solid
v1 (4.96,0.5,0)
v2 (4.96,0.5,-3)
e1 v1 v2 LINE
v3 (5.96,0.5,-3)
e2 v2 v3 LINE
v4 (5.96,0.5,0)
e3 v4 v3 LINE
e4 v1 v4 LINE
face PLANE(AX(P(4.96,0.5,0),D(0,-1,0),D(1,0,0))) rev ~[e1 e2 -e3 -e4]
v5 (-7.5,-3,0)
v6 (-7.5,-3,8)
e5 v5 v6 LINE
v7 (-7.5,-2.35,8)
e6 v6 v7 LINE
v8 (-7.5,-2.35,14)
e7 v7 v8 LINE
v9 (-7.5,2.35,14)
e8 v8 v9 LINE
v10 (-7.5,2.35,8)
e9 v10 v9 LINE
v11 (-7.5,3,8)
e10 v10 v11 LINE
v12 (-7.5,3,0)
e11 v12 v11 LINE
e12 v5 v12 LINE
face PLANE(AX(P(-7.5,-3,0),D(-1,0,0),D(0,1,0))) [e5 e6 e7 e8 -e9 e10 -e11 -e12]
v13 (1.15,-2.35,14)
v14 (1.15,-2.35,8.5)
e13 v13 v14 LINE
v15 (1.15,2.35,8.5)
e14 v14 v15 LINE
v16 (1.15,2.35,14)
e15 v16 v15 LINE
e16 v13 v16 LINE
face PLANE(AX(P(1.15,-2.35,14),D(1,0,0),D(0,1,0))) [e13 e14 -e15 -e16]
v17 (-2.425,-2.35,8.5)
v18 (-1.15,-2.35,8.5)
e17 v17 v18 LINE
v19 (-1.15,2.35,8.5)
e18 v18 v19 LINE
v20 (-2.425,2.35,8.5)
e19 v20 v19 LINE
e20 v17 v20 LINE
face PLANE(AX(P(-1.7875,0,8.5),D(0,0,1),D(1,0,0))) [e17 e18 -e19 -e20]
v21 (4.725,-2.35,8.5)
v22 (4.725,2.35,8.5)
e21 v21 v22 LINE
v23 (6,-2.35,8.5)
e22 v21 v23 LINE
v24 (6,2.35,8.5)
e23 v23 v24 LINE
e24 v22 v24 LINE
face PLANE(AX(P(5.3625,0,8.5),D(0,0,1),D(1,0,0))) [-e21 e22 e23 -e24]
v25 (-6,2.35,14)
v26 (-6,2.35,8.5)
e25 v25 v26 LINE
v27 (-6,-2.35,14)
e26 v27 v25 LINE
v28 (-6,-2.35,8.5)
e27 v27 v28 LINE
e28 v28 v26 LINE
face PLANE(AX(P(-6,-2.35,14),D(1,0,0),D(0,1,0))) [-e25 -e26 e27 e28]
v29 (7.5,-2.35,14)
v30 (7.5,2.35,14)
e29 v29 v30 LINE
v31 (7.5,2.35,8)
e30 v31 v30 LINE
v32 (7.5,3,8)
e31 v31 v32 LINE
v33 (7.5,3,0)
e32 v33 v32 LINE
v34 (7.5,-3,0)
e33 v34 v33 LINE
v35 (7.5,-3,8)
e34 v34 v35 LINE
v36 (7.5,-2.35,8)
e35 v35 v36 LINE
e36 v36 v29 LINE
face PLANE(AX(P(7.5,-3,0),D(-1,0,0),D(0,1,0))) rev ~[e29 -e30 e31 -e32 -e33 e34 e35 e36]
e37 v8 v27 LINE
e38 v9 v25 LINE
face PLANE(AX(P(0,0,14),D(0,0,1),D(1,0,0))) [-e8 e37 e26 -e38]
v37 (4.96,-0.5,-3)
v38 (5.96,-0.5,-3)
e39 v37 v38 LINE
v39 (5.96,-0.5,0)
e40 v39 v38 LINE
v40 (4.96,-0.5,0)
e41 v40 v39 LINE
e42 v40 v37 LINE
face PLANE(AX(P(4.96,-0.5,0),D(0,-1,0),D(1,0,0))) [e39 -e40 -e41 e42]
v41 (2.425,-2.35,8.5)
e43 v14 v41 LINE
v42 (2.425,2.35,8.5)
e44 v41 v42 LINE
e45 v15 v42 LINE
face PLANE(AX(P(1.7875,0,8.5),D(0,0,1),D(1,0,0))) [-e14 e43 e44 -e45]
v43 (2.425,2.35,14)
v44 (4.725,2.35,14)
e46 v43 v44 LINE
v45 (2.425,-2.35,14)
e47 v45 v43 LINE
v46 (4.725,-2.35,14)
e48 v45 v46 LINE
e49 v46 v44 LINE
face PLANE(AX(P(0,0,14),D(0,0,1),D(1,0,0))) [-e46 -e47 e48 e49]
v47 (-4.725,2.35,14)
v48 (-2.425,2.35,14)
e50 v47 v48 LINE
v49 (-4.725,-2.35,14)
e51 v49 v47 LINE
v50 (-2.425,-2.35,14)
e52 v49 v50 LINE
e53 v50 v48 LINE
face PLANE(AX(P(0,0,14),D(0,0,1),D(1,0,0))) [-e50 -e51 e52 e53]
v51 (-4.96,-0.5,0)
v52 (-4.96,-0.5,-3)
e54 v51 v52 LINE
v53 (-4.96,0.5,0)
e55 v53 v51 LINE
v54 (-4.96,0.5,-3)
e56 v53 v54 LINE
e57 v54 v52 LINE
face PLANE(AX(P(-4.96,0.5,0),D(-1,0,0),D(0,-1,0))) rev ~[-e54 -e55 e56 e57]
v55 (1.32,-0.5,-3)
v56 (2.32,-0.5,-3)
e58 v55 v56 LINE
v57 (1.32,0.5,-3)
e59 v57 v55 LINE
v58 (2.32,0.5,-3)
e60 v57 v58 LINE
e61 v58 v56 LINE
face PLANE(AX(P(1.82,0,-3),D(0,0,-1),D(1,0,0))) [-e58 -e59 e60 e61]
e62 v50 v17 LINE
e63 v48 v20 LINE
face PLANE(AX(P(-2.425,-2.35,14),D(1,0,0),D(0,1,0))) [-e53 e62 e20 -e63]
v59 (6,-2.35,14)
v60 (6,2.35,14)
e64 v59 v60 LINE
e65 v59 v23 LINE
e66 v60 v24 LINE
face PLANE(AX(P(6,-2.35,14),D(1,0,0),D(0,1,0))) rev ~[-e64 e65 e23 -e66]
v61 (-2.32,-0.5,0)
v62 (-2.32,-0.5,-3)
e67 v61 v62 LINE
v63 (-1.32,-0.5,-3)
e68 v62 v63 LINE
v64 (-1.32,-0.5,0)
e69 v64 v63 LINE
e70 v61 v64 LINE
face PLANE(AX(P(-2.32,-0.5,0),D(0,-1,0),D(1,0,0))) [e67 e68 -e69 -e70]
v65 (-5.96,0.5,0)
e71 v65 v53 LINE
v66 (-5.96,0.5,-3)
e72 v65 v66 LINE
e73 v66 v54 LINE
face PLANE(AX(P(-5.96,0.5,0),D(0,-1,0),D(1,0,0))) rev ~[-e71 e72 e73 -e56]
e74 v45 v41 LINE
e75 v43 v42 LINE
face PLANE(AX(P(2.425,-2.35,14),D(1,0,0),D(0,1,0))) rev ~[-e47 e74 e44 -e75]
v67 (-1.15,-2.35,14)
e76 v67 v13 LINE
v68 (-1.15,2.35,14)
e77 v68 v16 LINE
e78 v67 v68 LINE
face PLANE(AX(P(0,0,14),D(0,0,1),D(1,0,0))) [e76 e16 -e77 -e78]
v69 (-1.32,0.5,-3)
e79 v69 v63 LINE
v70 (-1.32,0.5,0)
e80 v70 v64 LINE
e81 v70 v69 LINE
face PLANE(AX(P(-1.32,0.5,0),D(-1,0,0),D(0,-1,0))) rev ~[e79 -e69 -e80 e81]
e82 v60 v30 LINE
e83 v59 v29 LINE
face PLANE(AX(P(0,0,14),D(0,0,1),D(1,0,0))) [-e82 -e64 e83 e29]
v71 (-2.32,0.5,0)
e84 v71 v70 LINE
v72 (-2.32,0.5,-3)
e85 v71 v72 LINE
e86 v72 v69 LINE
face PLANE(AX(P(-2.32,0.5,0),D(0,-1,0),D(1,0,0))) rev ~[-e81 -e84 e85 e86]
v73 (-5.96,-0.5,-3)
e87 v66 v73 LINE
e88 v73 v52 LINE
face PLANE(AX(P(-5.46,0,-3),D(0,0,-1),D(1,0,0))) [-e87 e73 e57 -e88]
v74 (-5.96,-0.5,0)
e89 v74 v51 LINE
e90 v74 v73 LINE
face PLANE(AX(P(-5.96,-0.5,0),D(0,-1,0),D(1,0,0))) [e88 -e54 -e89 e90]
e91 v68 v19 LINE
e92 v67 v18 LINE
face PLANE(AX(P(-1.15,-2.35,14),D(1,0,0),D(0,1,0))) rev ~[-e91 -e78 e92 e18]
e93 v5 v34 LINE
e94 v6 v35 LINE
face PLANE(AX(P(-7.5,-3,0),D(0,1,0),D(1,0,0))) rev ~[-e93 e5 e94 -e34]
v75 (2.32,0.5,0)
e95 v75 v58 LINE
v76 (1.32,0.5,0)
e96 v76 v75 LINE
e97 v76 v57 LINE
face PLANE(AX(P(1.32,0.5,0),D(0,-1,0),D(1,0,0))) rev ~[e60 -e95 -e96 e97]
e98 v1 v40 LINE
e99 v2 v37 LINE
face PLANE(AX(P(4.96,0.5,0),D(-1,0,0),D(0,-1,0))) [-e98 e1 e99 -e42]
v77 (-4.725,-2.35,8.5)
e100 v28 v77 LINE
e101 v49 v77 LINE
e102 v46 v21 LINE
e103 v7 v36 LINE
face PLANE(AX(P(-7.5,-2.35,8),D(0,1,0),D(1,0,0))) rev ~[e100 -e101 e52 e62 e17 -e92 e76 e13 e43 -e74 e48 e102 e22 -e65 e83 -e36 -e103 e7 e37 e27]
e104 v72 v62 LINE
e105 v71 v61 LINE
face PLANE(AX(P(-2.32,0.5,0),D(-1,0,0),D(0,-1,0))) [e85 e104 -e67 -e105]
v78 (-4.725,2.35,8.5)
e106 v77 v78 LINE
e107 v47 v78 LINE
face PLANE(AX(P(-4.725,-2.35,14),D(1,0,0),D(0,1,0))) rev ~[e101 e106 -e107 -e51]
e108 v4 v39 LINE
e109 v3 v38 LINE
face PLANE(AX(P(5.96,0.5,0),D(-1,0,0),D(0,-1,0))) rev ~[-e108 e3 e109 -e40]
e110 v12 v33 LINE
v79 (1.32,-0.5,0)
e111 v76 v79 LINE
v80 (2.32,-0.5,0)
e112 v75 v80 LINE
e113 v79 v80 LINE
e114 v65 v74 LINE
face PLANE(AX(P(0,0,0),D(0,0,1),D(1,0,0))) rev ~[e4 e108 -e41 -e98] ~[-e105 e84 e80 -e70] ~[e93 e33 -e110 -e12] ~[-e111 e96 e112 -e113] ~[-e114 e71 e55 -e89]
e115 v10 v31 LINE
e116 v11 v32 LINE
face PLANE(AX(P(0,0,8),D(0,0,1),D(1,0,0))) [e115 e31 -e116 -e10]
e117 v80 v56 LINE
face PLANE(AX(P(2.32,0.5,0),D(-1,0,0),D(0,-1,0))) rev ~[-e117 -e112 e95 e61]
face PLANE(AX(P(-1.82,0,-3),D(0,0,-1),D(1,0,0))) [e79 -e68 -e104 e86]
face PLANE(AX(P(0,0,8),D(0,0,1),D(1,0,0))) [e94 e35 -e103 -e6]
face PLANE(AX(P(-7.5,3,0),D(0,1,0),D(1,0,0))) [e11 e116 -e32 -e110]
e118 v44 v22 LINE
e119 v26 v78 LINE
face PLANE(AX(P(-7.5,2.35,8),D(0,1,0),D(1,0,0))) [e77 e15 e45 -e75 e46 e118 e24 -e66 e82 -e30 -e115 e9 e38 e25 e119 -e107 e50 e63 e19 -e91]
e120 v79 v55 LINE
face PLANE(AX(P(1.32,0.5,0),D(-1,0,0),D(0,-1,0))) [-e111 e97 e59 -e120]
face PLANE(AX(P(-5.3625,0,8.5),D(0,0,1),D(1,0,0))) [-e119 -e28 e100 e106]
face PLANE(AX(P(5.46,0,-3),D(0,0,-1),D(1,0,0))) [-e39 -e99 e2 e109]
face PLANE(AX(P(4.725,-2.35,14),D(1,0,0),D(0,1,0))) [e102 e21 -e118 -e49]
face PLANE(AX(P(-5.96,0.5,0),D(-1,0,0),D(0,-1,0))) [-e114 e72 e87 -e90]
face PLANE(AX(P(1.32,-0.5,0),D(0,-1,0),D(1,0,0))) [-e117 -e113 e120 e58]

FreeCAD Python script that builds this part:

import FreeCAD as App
import Part
import Sketcher
Q = App.Units.Quantity

doc = App.newDocument("Part")
body = doc.addObject("PartDesign::Body", "Body")

sketch1 = body.newObject("Sketcher::SketchObject", "Sketch")
sketch1.AttachmentSupport = (doc.getObject("XY_Plane"), [""])
sketch1.MapMode = "FlatFace"
sketch1.addGeometry([
    Part.LineSegment(App.Vector(-8, 3, 0), App.Vector(-8, -3, 0)),
    Part.LineSegment(App.Vector(-8, -3, 0), App.Vector(8, -3, 0)),
    Part.LineSegment(App.Vector(8, -3, 0), App.Vector(8, 3, 0)),
    Part.LineSegment(App.Vector(8, 3, 0), App.Vector(-8, 3, 0)),
], False)
sketch1.addConstraint([
    Sketcher.Constraint("Coincident", 0, 2, 1, 1),
    Sketcher.Constraint("Coincident", 1, 2, 2, 1),
    Sketcher.Constraint("Coincident", 2, 2, 3, 1),
    Sketcher.Constraint("Coincident", 3, 2, 0, 1),
    Sketcher.Constraint("Vertical", 0),
    Sketcher.Constraint("Horizontal", 1),
    Sketcher.Constraint("Vertical", 2),
    Sketcher.Constraint("Horizontal", 3),
    Sketcher.Constraint("Symmetric", 0, 2, 2, 2, -1, 1),
    Sketcher.Constraint("DistanceX", 1, 1, 1, 2, Q("15 mm")),
    Sketcher.Constraint("DistanceY", 0, 2, 0, 1, Q("6 mm")),
])
pad1 = body.newObject("PartDesign::Pad", "Pad")
pad1.Profile = sketch1
pad1.Length = 8

sketch2 = body.newObject("Sketcher::SketchObject", "Sketch001")
sketch2.AttachmentSupport = (doc.getObject("XY_Plane"), [""])
sketch2.MapMode = "FlatFace"
sketch2.AttachmentOffset = App.Placement(App.Vector(0, 0, 8), App.Rotation())
sketch2.addGeometry([
    Part.LineSegment(App.Vector(-7.5, 2.4, 0), App.Vector(-7.5, -2.4, 0)),
    Part.LineSegment(App.Vector(-7.5, -2.4, 0), App.Vector(7.5, -2.4, 0)),
    Part.LineSegment(App.Vector(7.5, -2.4, 0), App.Vector(7.5, 2.4, 0)),
    Part.LineSegment(App.Vector(7.5, 2.4, 0), App.Vector(-7.5, 2.4, 0)),
], False)
sketch2.addConstraint([
    Sketcher.Constraint("Coincident", 0, 2, 1, 1),
    Sketcher.Constraint("Coincident", 1, 2, 2, 1),
    Sketcher.Constraint("Coincident", 2, 2, 3, 1),
    Sketcher.Constraint("Coincident", 3, 2, 0, 1),
    Sketcher.Constraint("Vertical", 0),
    Sketcher.Constraint("Horizontal", 1),
    Sketcher.Constraint("Vertical", 2),
    Sketcher.Constraint("Horizontal", 3),
    Sketcher.Constraint("Symmetric", 0, 2, 2, 2, -1, 1),
    Sketcher.Constraint("DistanceX", 1, 1, 1, 2, Q("15 mm")),
    Sketcher.Constraint("DistanceY", 0, 2, 0, 1, Q("4.7 mm")),
])
pad2 = body.newObject("PartDesign::Pad", "Pad001")
pad2.Profile = sketch2
pad2.Length = 6

sketch3 = body.newObject("Sketcher::SketchObject", "Sketch002")
sketch3.AttachmentSupport = (doc.getObject("XY_Plane"), [""])
sketch3.MapMode = "FlatFace"
sketch3.AttachmentOffset = App.Placement(App.Vector(0, 0, 14), App.Rotation())
sketch3.addGeometry([
    Part.LineSegment(App.Vector(1.1, 2.4, 0), App.Vector(1.1, -2.4, 0)),
    Part.LineSegment(App.Vector(1.1, -2.4, 0), App.Vector(2.4, -2.4, 0)),
    Part.LineSegment(App.Vector(2.4, -2.4, 0), App.Vector(2.4, 2.4, 0)),
    Part.LineSegment(App.Vector(2.4, 2.4, 0), App.Vector(1.1, 2.4, 0)),
    Part.LineSegment(App.Vector(4.7, 2.4, 0), App.Vector(4.7, -2.4, 0)),
    Part.LineSegment(App.Vector(4.7, -2.4, 0), App.Vector(6, -2.4, 0)),
    Part.LineSegment(App.Vector(6, -2.4, 0), App.Vector(6, 2.4, 0)),
    Part.LineSegment(App.Vector(6, 2.4, 0), App.Vector(4.7, 2.4, 0)),
    Part.LineSegment(App.Vector(-2.4, 2.4, 0), App.Vector(-2.4, -2.4, 0)),
    Part.LineSegment(App.Vector(-2.4, -2.4, 0), App.Vector(-1.1, -2.4, 0)),
    Part.LineSegment(App.Vector(-1.1, -2.4, 0), App.Vector(-1.1, 2.4, 0)),
    Part.LineSegment(App.Vector(-1.1, 2.4, 0), App.Vector(-2.4, 2.4, 0)),
    Part.LineSegment(App.Vector(-6, 2.4, 0), App.Vector(-6, -2.4, 0)),
    Part.LineSegment(App.Vector(-6, -2.4, 0), App.Vector(-4.7, -2.4, 0)),
    Part.LineSegment(App.Vector(-4.7, -2.4, 0), App.Vector(-4.7, 2.4, 0)),
    Part.LineSegment(App.Vector(-4.7, 2.4, 0), App.Vector(-6, 2.4, 0)),
], False)
sketch3.addConstraint([
    Sketcher.Constraint("Coincident", 0, 2, 1, 1),
    Sketcher.Constraint("Coincident", 1, 2, 2, 1),
    Sketcher.Constraint("Coincident", 2, 2, 3, 1),
    Sketcher.Constraint("Coincident", 3, 2, 0, 1),
    Sketcher.Constraint("Coincident", 4, 2, 5, 1),
    Sketcher.Constraint("Coincident", 5, 2, 6, 1),
    Sketcher.Constraint("Coincident", 6, 2, 7, 1),
    Sketcher.Constraint("Coincident", 7, 2, 4, 1),
    Sketcher.Constraint("Coincident", 8, 2, 9, 1),
    Sketcher.Constraint("Coincident", 9, 2, 10, 1),
    Sketcher.Constraint("Coincident", 10, 2, 11, 1),
    Sketcher.Constraint("Coincident", 11, 2, 8, 1),
    Sketcher.Constraint("Coincident", 12, 2, 13, 1),
    Sketcher.Constraint("Coincident", 13, 2, 14, 1),
    Sketcher.Constraint("Coincident", 14, 2, 15, 1),
    Sketcher.Constraint("Coincident", 15, 2, 12, 1),
    Sketcher.Constraint("Vertical", 0),
    Sketcher.Constraint("Horizontal", 1),
    Sketcher.Constraint("Vertical", 2),
    Sketcher.Constraint("Horizontal", 3),
    Sketcher.Constraint("Vertical", 4),
    Sketcher.Constraint("Horizontal", 5),
    Sketcher.Constraint("Vertical", 6),
    Sketcher.Constraint("Horizontal", 7),
    Sketcher.Constraint("Vertical", 8),
    Sketcher.Constraint("Horizontal", 9),
    Sketcher.Constraint("Vertical", 10),
    Sketcher.Constraint("Horizontal", 11),
    Sketcher.Constraint("Vertical", 12),
    Sketcher.Constraint("Horizontal", 13),
    Sketcher.Constraint("Vertical", 14),
    Sketcher.Constraint("Horizontal", 15),
    Sketcher.Constraint("Symmetric", 2, 2, 8, 2, -1, 1),
    Sketcher.Constraint("Symmetric", 0, 2, 10, 2, -1, 1),
    Sketcher.Constraint("Symmetric", 6, 2, 12, 2, -1, 1),
    Sketcher.Constraint("Symmetric", 4, 2, 14, 2, -1, 1),
    Sketcher.Constraint("Horizontal", 1, 2, 4, 2),
    Sketcher.Constraint("Horizontal", 3, 2, 6, 2),
    Sketcher.Constraint("Horizontal", 5, 2, 8, 2),
    Sketcher.Constraint("Equal", 3, 5),
    Sketcher.Constraint("DistanceY", 0, 2, 0, 1, Q("4.7 mm")),
    Sketcher.Constraint("DistanceX", -1, 1, 5, 2, Q("6 mm")),
    Sketcher.Constraint("DistanceX", 1, 2, 4, 2, Q("2.3 mm")),
    Sketcher.Constraint("DistanceX", 9, 2, 0, 2, Q("2.3 mm")),
])
pocket1 = body.newObject("PartDesign::Pocket", "Pocket")
pocket1.Profile = sketch3
pocket1.Length = 5.5

sketch4 = body.newObject("Sketcher::SketchObject", "Sketch003")
sketch4.AttachmentSupport = (doc.getObject("XY_Plane"), [""])
sketch4.MapMode = "FlatFace"
sketch4.addGeometry([
    Part.LineSegment(App.Vector(-2.3, -0.5, 0), App.Vector(-2.3, 0.5, 0)),
    Part.LineSegment(App.Vector(-2.3, 0.5, 0), App.Vector(-1.3, 0.5, 0)),
    Part.LineSegment(App.Vector(-1.3, 0.5, 0), App.Vector(-1.3, -0.5, 0)),
    Part.LineSegment(App.Vector(-1.3, -0.5, 0), App.Vector(-2.3, -0.5, 0)),
    Part.LineSegment(App.Vector(-6, -0.5, 0), App.Vector(-6, 0.5, 0)),
    Part.LineSegment(App.Vector(-6, 0.5, 0), App.Vector(-5, 0.5, 0)),
    Part.LineSegment(App.Vector(-5, 0.5, 0), App.Vector(-5, -0.5, 0)),
    Part.LineSegment(App.Vector(-5, -0.5, 0), App.Vector(-6, -0.5, 0)),
    Part.LineSegment(App.Vector(1.3, -0.5, 0), App.Vector(1.3, 0.5, 0)),
    Part.LineSegment(App.Vector(1.3, 0.5, 0), App.Vector(2.3, 0.5, 0)),
    Part.LineSegment(App.Vector(2.3, 0.5, 0), App.Vector(2.3, -0.5, 0)),
    Part.LineSegment(App.Vector(2.3, -0.5, 0), App.Vector(1.3, -0.5, 0)),
    Part.LineSegment(App.Vector(5, -0.5, 0), App.Vector(5, 0.5, 0)),
    Part.LineSegment(App.Vector(5, 0.5, 0), App.Vector(6, 0.5, 0)),
    Part.LineSegment(App.Vector(6, 0.5, 0), App.Vector(6, -0.5, 0)),
    Part.LineSegment(App.Vector(6, -0.5, 0), App.Vector(5, -0.5, 0)),
], False)
sketch4.addConstraint([
    Sketcher.Constraint("Coincident", 0, 2, 1, 1),
    Sketcher.Constraint("Coincident", 1, 2, 2, 1),
    Sketcher.Constraint("Coincident", 2, 2, 3, 1),
    Sketcher.Constraint("Coincident", 3, 2, 0, 1),
    Sketcher.Constraint("Coincident", 4, 2, 5, 1),
    Sketcher.Constraint("Coincident", 5, 2, 6, 1),
    Sketcher.Constraint("Coincident", 6, 2, 7, 1),
    Sketcher.Constraint("Coincident", 7, 2, 4, 1),
    Sketcher.Constraint("Coincident", 8, 2, 9, 1),
    Sketcher.Constraint("Coincident", 9, 2, 10, 1),
    Sketcher.Constraint("Coincident", 10, 2, 11, 1),
    Sketcher.Constraint("Coincident", 11, 2, 8, 1),
    Sketcher.Constraint("Coincident", 12, 2, 13, 1),
    Sketcher.Constraint("Coincident", 13, 2, 14, 1),
    Sketcher.Constraint("Coincident", 14, 2, 15, 1),
    Sketcher.Constraint("Coincident", 15, 2, 12, 1),
    Sketcher.Constraint("Vertical", 0),
    Sketcher.Constraint("Horizontal", 1),
    Sketcher.Constraint("Vertical", 2),
    Sketcher.Constraint("Horizontal", 3),
    Sketcher.Constraint("Vertical", 4),
    Sketcher.Constraint("Horizontal", 5),
    Sketcher.Constraint("Vertical", 6),
    Sketcher.Constraint("Horizontal", 7),
    Sketcher.Constraint("Vertical", 8),
    Sketcher.Constraint("Horizontal", 9),
    Sketcher.Constraint("Vertical", 10),
    Sketcher.Constraint("Horizontal", 11),
    Sketcher.Constraint("Vertical", 12),
    Sketcher.Constraint("Horizontal", 13),
    Sketcher.Constraint("Vertical", 14),
    Sketcher.Constraint("Horizontal", 15),
    Sketcher.Constraint("Symmetric", 2, 2, 8, 2, -1, 1),
    Sketcher.Constraint("Symmetric", 0, 2, 10, 2, -1, 1),
    Sketcher.Constraint("Symmetric", 6, 2, 12, 2, -1, 1),
    Sketcher.Constraint("Symmetric", 4, 2, 14, 2, -1, 1),
    Sketcher.Constraint("Horizontal", 1, 2, 4, 2),
    Sketcher.Constraint("Horizontal", 3, 2, 6, 2),
    Sketcher.Constraint("Horizontal", 5, 2, 8, 2),
    Sketcher.Constraint("Equal", 3, 5),
    Sketcher.Constraint("Equal", 15, 0),
    Sketcher.Constraint("DistanceX", 1, 1, 1, 2, Q("1 mm")),
    Sketcher.Constraint("DistanceX", 0, 2, -1, 1, Q("2.32 mm")),
    Sketcher.Constraint("DistanceX", 4, 2, -1, 1, Q("5.96 mm")),
])
pad3 = body.newObject("PartDesign::Pad", "Pad002")
pad3.Profile = sketch4
pad3.Length = 3
pad3.Reversed = True

doc.recompute()
